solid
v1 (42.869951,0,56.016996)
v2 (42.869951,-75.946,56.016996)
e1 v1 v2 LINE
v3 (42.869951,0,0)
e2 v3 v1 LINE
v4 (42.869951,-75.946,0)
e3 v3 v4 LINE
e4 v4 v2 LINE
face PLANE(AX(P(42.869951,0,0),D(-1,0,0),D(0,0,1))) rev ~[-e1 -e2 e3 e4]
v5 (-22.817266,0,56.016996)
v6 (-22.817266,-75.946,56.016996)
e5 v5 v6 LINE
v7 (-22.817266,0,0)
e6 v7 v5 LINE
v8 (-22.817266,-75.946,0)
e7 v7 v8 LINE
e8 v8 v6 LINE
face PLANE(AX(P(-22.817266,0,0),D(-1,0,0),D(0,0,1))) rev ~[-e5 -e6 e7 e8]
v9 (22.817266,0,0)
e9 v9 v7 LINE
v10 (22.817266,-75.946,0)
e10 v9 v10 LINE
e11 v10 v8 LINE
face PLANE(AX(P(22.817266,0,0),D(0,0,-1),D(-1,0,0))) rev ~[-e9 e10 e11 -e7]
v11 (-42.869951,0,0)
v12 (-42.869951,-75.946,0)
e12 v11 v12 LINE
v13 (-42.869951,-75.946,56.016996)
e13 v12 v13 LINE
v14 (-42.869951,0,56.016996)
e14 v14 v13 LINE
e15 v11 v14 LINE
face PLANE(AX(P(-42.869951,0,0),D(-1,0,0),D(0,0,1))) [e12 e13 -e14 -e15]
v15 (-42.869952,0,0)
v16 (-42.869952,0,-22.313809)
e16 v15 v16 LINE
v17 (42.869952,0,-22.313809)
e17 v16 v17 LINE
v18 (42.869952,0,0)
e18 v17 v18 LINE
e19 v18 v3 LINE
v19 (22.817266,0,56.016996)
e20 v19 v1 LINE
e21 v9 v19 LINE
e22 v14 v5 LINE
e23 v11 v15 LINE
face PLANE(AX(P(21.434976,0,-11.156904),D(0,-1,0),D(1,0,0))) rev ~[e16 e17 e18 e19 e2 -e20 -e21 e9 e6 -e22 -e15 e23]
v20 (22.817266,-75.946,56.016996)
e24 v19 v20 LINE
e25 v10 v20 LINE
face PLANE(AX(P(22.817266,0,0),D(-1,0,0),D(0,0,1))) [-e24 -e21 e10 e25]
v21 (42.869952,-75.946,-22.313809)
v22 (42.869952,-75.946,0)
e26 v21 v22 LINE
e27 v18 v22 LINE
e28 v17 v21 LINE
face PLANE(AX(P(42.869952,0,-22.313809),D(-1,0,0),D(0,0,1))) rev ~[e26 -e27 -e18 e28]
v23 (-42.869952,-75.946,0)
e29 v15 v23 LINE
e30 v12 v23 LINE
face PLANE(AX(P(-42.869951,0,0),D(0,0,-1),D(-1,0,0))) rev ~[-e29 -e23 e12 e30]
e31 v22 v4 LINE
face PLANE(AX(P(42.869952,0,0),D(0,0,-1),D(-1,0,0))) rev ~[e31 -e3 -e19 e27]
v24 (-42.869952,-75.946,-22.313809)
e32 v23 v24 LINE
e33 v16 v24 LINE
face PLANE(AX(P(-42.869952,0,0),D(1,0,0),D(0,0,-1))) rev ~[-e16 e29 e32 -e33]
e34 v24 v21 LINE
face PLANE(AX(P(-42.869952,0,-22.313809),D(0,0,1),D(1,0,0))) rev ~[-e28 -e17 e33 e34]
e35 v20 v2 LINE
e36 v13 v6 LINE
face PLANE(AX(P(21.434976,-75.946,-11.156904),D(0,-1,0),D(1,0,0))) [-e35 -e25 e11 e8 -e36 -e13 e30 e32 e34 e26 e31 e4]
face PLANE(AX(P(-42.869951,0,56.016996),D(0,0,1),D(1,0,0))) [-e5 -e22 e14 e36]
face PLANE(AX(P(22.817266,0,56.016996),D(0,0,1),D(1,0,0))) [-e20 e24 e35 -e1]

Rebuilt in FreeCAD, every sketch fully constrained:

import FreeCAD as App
import Part
import Sketcher
from FreeCAD import Vector
Q = App.Units.Quantity

doc = App.newDocument("Part")
body = doc.addObject("PartDesign::Body", "Body")

sketch1 = body.newObject("Sketcher::SketchObject", "Sketch")
sketch1.AttachmentSupport = (doc.getObject("XZ_Plane"), [""])
sketch1.MapMode = "FlatFace"
sketch1.addGeometry(Part.LineSegment(Vector(-42.869952, 0, 0), Vector(-42.869952, -22.313809, 0)), False)
sketch1.addGeometry(Part.LineSegment(Vector(-42.869952, -22.313809, 0), Vector(42.869952, -22.313809, 0)), False)
sketch1.addGeometry(Part.LineSegment(Vector(42.869952, -22.313809, 0), Vector(42.869952, 0, 0)), False)
sketch1.addGeometry(Part.LineSegment(Vector(42.869951, 0, 0), Vector(42.869952, 0, 0)), False)
sketch1.addGeometry(Part.LineSegment(Vector(42.869951, 0, 0), Vector(42.869951, 56.016996, 0)), False)
sketch1.addGeometry(Part.LineSegment(Vector(42.869951, 56.016996, 0), Vector(22.817266, 56.016996, 0)), False)
sketch1.addGeometry(Part.LineSegment(Vector(22.817266, 56.016996, 0), Vector(22.817266, 0, 0)), False)
sketch1.addGeometry(Part.LineSegment(Vector(22.817266, 0, 0), Vector(-22.817266, 0, 0)), False)
sketch1.addGeometry(Part.LineSegment(Vector(-22.817266, 0, 0), Vector(-22.817266, 56.016996, 0)), False)
sketch1.addGeometry(Part.LineSegment(Vector(-22.817266, 56.016996, 0), Vector(-42.869951, 56.016996, 0)), False)
sketch1.addGeometry(Part.LineSegment(Vector(-42.869951, 56.016996, 0), Vector(-42.869951, 0, 0)), False)
sketch1.addGeometry(Part.LineSegment(Vector(-42.869952, 0, 0), Vector(-42.869951, 0, 0)), False)
sketch1.addConstraint(Sketcher.Constraint("Coincident", 0, 2, 1, 1))
sketch1.addConstraint(Sketcher.Constraint("Coincident", 1, 2, 2, 1))
sketch1.addConstraint(Sketcher.Constraint("Coincident", 2, 2, 3, 1))
sketch1.addConstraint(Sketcher.Constraint("Coincident", 3, 2, 4, 1))
sketch1.addConstraint(Sketcher.Constraint("Coincident", 4, 2, 5, 1))
sketch1.addConstraint(Sketcher.Constraint("Coincident", 5, 2, 6, 1))
sketch1.addConstraint(Sketcher.Constraint("Coincident", 6, 2, 7, 1))
sketch1.addConstraint(Sketcher.Constraint("Coincident", 7, 2, 8, 1))
sketch1.addConstraint(Sketcher.Constraint("Coincident", 8, 2, 9, 1))
sketch1.addConstraint(Sketcher.Constraint("Coincident", 9, 2, 10, 1))
sketch1.addConstraint(Sketcher.Constraint("Coincident", 10, 2, 11, 1))
sketch1.addConstraint(Sketcher.Constraint("Coincident", 11, 2, 0, 1))
sketch1.addConstraint(Sketcher.Constraint("Vertical", 0))
sketch1.addConstraint(Sketcher.Constraint("Horizontal", 1))
sketch1.addConstraint(Sketcher.Constraint("Vertical", 2))
sketch1.addConstraint(Sketcher.Constraint("Horizontal", 3))
sketch1.addConstraint(Sketcher.Constraint("Vertical", 4))
sketch1.addConstraint(Sketcher.Constraint("Horizontal", 5))
sketch1.addConstraint(Sketcher.Constraint("Vertical", 6))
sketch1.addConstraint(Sketcher.Constraint("Horizontal", 7))
sketch1.addConstraint(Sketcher.Constraint("Vertical", 8))
sketch1.addConstraint(Sketcher.Constraint("Horizontal", 9))
sketch1.addConstraint(Sketcher.Constraint("Vertical", 10))
sketch1.addConstraint(Sketcher.Constraint("Horizontal", 11))
sketch1.addConstraint(Sketcher.Constraint("Symmetric", 6, 2, 7, 2, -1, 1))
sketch1.addConstraint(Sketcher.Constraint("Symmetric", 2, 2, 10, 2, -1, 1))
sketch1.addConstraint(Sketcher.Constraint("Symmetric", 4, 2, 9, 2, -2))
sketch1.addConstraint(Sketcher.Constraint("Symmetric", 2, 2, 11, 2, -2))
sketch1.addConstraint(Sketcher.Constraint("DistanceY", 0, 2, 0, 1, Q("22.313809 mm")))
sketch1.addConstraint(Sketcher.Constraint("DistanceX", 1, 1, 1, 2, Q("85.739904 mm")))
sketch1.addConstraint(Sketcher.Constraint("DistanceX", 5, 2, 5, 1, Q("20.052685 mm")))
sketch1.addConstraint(Sketcher.Constraint("DistanceY", 4, 1, 4, 2, Q("56.016996 mm")))
pad1 = body.newObject("PartDesign::Pad", "Pad")
pad1.Profile = sketch1
pad1.Length = Q("2.99 in")

doc.recompute()
